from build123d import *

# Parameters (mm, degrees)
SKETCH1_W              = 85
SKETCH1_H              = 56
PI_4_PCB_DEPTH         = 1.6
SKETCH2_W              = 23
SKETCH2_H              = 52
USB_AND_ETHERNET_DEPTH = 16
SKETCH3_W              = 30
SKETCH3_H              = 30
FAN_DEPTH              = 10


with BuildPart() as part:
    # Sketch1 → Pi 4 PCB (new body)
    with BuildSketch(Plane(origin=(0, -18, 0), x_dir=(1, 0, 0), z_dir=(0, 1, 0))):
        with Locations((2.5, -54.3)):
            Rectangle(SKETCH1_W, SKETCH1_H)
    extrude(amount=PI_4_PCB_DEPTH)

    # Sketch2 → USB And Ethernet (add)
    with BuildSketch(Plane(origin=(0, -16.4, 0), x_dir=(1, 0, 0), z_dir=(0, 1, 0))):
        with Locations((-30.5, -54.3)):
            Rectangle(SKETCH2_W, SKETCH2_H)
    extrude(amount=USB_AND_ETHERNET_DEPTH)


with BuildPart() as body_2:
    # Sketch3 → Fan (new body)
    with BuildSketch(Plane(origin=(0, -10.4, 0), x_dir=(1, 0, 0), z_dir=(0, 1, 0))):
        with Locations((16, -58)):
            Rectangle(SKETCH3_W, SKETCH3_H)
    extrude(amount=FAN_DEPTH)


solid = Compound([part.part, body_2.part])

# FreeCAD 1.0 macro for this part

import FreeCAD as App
import Part
import Sketcher
from FreeCAD import Vector
Q = App.Units.Quantity

doc = App.newDocument("Part")
body = doc.addObject("PartDesign::Body", "Body")

# Sketch on XZ plane
sketch1 = body.newObject("Sketcher::SketchObject", "Sketch")
sketch1.AttachmentSupport = (doc.getObject("XZ_Plane"), [""])
sketch1.MapMode = "FlatFace"
sketch1.AttachmentOffset = App.Placement(Vector(0, 0, 18), App.Rotation())
sketch1.addGeometry(Part.LineSegment(Vector(-40, 26, 0), Vector(-40, 82, 0)), False)
sketch1.addGeometry(Part.LineSegment(Vector(-40, 82, 0), Vector(45, 82, 0)), False)
sketch1.addGeometry(Part.LineSegment(Vector(45, 82, 0), Vector(45, 26, 0)), False)
sketch1.addGeometry(Part.LineSegment(Vector(45, 26, 0), Vector(-40, 26, 0)), False)
sketch1.addConstraint(Sketcher.Constraint("Coincident", 0, 2, 1, 1))
sketch1.addConstraint(Sketcher.Constraint("Coincident", 1, 2, 2, 1))
sketch1.addConstraint(Sketcher.Constraint("Coincident", 2, 2, 3, 1))
sketch1.addConstraint(Sketcher.Constraint("Coincident", 3, 2, 0, 1))
sketch1.addConstraint(Sketcher.Constraint("Vertical", 0))
sketch1.addConstraint(Sketcher.Constraint("Horizontal", 1))
sketch1.addConstraint(Sketcher.Constraint("Vertical", 2))
sketch1.addConstraint(Sketcher.Constraint("Horizontal", 3))
sketch1.addConstraint(Sketcher.Constraint("DistanceX", 1, 1, 1, 2, Q("85 mm")))
sketch1.addConstraint(Sketcher.Constraint("DistanceY", 0, 1, 0, 2, Q("56 mm")))
sketch1.addConstraint(Sketcher.Constraint("DistanceX", 0, 2, -1, 1, Q("40 mm")))
sketch1.addConstraint(Sketcher.Constraint("DistanceY", -1, 1, 0, 2, Q("82.3 mm")))
pad1 = body.newObject("PartDesign::Pad", "Pad")
pad1.Profile = sketch1
pad1.Length = 1.6
pad1.Reversed = True

# Sketch on XZ plane
sketch2 = body.newObject("Sketcher::SketchObject", "Sketch001")
sketch2.AttachmentSupport = (doc.getObject("XZ_Plane"), [""])
sketch2.MapMode = "FlatFace"
sketch2.AttachmentOffset = App.Placement(Vector(0, 0, 16.4), App.Rotation())
sketch2.addGeometry(Part.LineSegment(Vector(-42, 28, 0), Vector(-42, 80, 0)), False)
sketch2.addGeometry(Part.LineSegment(Vector(-42, 80, 0), Vector(-19, 80, 0)), False)
sketch2.addGeometry(Part.LineSegment(Vector(-19, 80, 0), Vector(-19, 28, 0)), False)
sketch2.addGeometry(Part.LineSegment(Vector(-19, 28, 0), Vector(-42, 28, 0)), False)
sketch2.addConstraint(Sketcher.Constraint("Coincident", 0, 2, 1, 1))
sketch2.addConstraint(Sketcher.Constraint("Coincident", 1, 2, 2, 1))
sketch2.addConstraint(Sketcher.Constraint("Coincident", 2, 2, 3, 1))
sketch2.addConstraint(Sketcher.Constraint("Coincident", 3, 2, 0, 1))
sketch2.addConstraint(Sketcher.Constraint("Vertical", 0))
sketch2.addConstraint(Sketcher.Constraint("Horizontal", 1))
sketch2.addConstraint(Sketcher.Constraint("Vertical", 2))
sketch2.addConstraint(Sketcher.Constraint("Horizontal", 3))
sketch2.addConstraint(Sketcher.Constraint("DistanceX", 1, 1, 1, 2, Q("23 mm")))
sketch2.addConstraint(Sketcher.Constraint("DistanceY", 0, 1, 0, 2, Q("52 mm")))
sketch2.addConstraint(Sketcher.Constraint("DistanceX", 0, 2, -1, 1, Q("42 mm")))
sketch2.addConstraint(Sketcher.Constraint("DistanceY", -1, 1, 0, 2, Q("80.3 mm")))
pad2 = body.newObject("PartDesign::Pad", "Pad001")
pad2.Profile = sketch2
pad2.Length = 16
pad2.Reversed = True
body2 = doc.addObject("PartDesign::Body", "Body001")

# Sketch on XZ plane
sketch3 = body2.newObject("Sketcher::SketchObject", "Sketch002")
sketch3.AttachmentSupport = (doc.getObject("XZ_Plane001"), [""])
sketch3.MapMode = "FlatFace"
sketch3.AttachmentOffset = App.Placement(Vector(0, 0, 10.4), App.Rotation())
sketch3.addGeometry(Part.LineSegment(Vector(1, 43, 0), Vector(1, 73, 0)), False)
sketch3.addGeometry(Part.LineSegment(Vector(1, 73, 0), Vector(31, 73, 0)), False)
sketch3.addGeometry(Part.LineSegment(Vector(31, 73, 0), Vector(31, 43, 0)), False)
sketch3.addGeometry(Part.LineSegment(Vector(31, 43, 0), Vector(1, 43, 0)), False)
sketch3.addConstraint(Sketcher.Constraint("Coincident", 0, 2, 1, 1))
sketch3.addConstraint(Sketcher.Constraint("Coincident", 1, 2, 2, 1))
sketch3.addConstraint(Sketcher.Constraint("Coincident", 2, 2, 3, 1))
sketch3.addConstraint(Sketcher.Constraint("Coincident", 3, 2, 0, 1))
sketch3.addConstraint(Sketcher.Constraint("Vertical", 0))
sketch3.addConstraint(Sketcher.Constraint("Horizontal", 1))
sketch3.addConstraint(Sketcher.Constraint("Vertical", 2))
sketch3.addConstraint(Sketcher.Constraint("Horizontal", 3))
sketch3.addConstraint(Sketcher.Constraint("Equal", 3, 0))
sketch3.addConstraint(Sketcher.Constraint("DistanceX", 1, 1, 1, 2, Q("30 mm")))
sketch3.addConstraint(Sketcher.Constraint("DistanceX", -1, 1, 0, 2, Q("1 mm")))
sketch3.addConstraint(Sketcher.Constraint("DistanceY", -1, 1, 0, 2, Q("73 mm")))
pad3 = body2.newObject("PartDesign::Pad", "Pad002")
pad3.Profile = sketch3
pad3.Length = 10
pad3.Reversed = True

doc.recompute()
